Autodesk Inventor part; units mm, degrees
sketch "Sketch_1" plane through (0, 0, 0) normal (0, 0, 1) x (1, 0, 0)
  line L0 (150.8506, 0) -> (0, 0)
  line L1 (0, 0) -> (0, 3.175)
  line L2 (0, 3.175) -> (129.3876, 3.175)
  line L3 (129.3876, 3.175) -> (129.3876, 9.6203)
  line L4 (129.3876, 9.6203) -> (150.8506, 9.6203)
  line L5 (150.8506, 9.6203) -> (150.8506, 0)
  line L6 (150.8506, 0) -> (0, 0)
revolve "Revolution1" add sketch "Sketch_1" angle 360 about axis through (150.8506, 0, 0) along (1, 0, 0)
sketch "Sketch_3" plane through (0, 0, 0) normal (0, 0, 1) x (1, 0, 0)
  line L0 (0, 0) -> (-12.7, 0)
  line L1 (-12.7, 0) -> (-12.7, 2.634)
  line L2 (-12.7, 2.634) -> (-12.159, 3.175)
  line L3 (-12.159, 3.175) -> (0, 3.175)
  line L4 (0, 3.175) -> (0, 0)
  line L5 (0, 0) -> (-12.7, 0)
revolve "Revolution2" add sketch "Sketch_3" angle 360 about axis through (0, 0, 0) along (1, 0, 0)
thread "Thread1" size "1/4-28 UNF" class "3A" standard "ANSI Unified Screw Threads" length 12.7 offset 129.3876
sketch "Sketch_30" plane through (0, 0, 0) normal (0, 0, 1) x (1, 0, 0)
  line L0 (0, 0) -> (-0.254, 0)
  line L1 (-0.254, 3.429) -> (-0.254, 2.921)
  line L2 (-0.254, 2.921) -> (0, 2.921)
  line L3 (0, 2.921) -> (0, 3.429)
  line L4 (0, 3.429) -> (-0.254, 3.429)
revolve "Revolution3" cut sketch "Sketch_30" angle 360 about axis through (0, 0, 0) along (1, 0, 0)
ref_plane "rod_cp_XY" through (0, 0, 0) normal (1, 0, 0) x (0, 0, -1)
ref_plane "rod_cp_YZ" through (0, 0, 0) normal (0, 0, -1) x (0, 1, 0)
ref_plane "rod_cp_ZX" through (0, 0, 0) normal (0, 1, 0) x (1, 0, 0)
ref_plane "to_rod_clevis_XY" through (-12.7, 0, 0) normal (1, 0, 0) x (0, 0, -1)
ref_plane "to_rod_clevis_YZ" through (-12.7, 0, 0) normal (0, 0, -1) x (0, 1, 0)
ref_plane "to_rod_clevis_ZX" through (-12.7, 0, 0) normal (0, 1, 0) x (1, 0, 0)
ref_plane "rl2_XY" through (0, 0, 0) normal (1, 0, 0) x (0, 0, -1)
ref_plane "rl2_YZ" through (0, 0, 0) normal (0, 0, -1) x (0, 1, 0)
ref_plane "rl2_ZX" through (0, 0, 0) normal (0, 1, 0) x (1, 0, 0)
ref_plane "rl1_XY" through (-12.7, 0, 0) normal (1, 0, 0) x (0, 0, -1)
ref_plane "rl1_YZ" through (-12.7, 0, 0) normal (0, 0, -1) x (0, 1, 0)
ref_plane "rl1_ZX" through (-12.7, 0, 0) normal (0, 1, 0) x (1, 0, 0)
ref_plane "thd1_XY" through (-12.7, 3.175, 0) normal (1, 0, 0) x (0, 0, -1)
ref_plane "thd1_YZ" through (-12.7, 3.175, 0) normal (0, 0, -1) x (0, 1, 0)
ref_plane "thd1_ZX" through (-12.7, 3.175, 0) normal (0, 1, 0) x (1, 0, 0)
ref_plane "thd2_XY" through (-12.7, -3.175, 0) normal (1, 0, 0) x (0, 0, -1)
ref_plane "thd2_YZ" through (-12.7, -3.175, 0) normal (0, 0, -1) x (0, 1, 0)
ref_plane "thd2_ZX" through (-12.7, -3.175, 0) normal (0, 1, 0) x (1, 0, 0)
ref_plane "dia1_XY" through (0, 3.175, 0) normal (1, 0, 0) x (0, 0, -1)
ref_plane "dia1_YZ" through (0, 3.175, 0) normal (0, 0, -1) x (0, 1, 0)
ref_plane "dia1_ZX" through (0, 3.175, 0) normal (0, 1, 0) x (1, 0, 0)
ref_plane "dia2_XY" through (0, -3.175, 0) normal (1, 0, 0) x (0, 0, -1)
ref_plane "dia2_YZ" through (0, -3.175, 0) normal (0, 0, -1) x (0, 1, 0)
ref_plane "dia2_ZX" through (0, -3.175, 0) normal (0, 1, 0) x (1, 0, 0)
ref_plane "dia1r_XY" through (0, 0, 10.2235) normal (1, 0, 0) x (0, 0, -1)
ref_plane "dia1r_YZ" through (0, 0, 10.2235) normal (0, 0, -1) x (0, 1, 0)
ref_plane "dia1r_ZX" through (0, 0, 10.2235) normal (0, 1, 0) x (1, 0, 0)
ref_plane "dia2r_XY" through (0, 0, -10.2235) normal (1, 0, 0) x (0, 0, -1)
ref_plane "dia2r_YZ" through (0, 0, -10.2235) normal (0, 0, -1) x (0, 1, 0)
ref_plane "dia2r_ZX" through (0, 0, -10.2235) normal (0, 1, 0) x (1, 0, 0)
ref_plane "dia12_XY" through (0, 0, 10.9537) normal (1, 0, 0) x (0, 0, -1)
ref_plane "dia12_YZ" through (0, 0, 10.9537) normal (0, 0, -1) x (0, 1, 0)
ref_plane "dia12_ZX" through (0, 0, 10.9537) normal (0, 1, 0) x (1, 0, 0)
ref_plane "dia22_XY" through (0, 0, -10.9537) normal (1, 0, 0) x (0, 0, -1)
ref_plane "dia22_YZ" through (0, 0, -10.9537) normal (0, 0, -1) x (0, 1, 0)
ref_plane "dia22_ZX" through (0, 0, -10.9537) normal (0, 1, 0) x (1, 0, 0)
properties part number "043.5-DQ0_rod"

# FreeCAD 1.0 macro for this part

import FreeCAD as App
import Part
import Sketcher

V = App.Vector
Q = App.Units.Quantity


def add_polygon(sketch, points):
    """Adds a closed chain of lines whose ends are joined by coincident constraints."""
    first, n = sketch.GeometryCount, len(points)
    for a, b in zip(points, points[1:] + points[:1]):
        sketch.addGeometry(Part.LineSegment(App.Vector(*a, 0), App.Vector(*b, 0)), False)
    for i in range(n):
        sketch.addConstraint(Sketcher.Constraint("Coincident", first + i, 2, first + (i + 1) % n, 1))

doc = App.newDocument("Part")
body = doc.addObject("PartDesign::Body", "Body")

sketch1 = body.newObject("Sketcher::SketchObject", "Sketch")
sketch1.AttachmentSupport = (doc.getObject("XY_Plane"), [""])
sketch1.MapMode = "FlatFace"
add_polygon(sketch1, [(0, 0), (150.9, 0), (150.9, 9.6), (129.4, 9.6), (129.4, 3.2), (0, 3.2)])
sketch1.addConstraint([
    Sketcher.Constraint("Horizontal", 0),
    Sketcher.Constraint("Vertical", 1),
    Sketcher.Constraint("Horizontal", 2),
    Sketcher.Constraint("Vertical", 3),
    Sketcher.Constraint("Horizontal", 4),
    Sketcher.Constraint("Vertical", 5),
    Sketcher.Constraint("Coincident", 5, 2, -1, 1),
    Sketcher.Constraint("DistanceX", 0, 1, 0, 2, Q("5.939 in")),
    Sketcher.Constraint("DistanceX", 2, 2, 2, 1, Q("0.845 in")),
    Sketcher.Constraint("DistanceY", 5, 2, 5, 1, Q("0.125 in")),
    Sketcher.Constraint("DistanceY", 1, 1, 1, 2, Q("9.6203 mm")),
])
revolution = body.newObject("PartDesign::Revolution", "Revolution")
revolution.Profile = sketch1
revolution.ReferenceAxis = (sketch1, ["H_Axis"])
revolution.Angle = 360

sketch2 = body.newObject("Sketcher::SketchObject", "Sketch001")
sketch2.AttachmentSupport = (doc.getObject("XY_Plane"), [""])
sketch2.MapMode = "FlatFace"
add_polygon(sketch2, [(-12.7, 0), (0, 0), (0, 3.2), (-12.2, 3.2), (-12.7, 2.6)])
sketch2.addConstraint([
    Sketcher.Constraint("Horizontal", 0),
    Sketcher.Constraint("Vertical", 1),
    Sketcher.Constraint("Horizontal", 2),
    Sketcher.Constraint("Vertical", 4),
    Sketcher.Constraint("Coincident", 0, 2, -1, 1),
    Sketcher.Constraint("DistanceX", 0, 1, 0, 2, Q("0.5 in")),
    Sketcher.Constraint("Angle", 3, Q("-135 deg")),
    Sketcher.Constraint("DistanceY", 1, 1, 1, 2, Q("0.125 in")),
    Sketcher.Constraint("DistanceX", 2, 2, 2, 1, Q("0.4787 in")),
])
revolution2 = body.newObject("PartDesign::Revolution", "Revolution001")
revolution2.Profile = sketch2
revolution2.ReferenceAxis = (sketch2, ["H_Axis"])
revolution2.Angle = 360

sketch3 = body.newObject("Sketcher::SketchObject", "Sketch002")
sketch3.AttachmentSupport = (doc.getObject("XY_Plane"), [""])
sketch3.MapMode = "FlatFace"
add_polygon(sketch3, [(0, 3.43), (-0.25, 3.43), (-0.25, 2.92), (0, 2.92)])
sketch3.addConstraint([
    Sketcher.Constraint("Horizontal", 0),
    Sketcher.Constraint("Vertical", 1),
    Sketcher.Constraint("Horizontal", 2),
    Sketcher.Constraint("Vertical", 3),
    Sketcher.Constraint("PointOnObject", 2, 2, -2),
    Sketcher.Constraint("DistanceX", 0, 2, 0, 1, Q("0.01 in")),
    Sketcher.Constraint("DistanceY", 1, 2, 1, 1, Q("0.02 in")),
    Sketcher.Constraint("DistanceY", -1, 1, 0, 2, Q("0.135 in")),
])
groove = body.newObject("PartDesign::Groove", "Groove")
groove.Profile = sketch3
groove.ReferenceAxis = (sketch3, ["H_Axis"])
groove.Angle = 360

doc.recompute()
